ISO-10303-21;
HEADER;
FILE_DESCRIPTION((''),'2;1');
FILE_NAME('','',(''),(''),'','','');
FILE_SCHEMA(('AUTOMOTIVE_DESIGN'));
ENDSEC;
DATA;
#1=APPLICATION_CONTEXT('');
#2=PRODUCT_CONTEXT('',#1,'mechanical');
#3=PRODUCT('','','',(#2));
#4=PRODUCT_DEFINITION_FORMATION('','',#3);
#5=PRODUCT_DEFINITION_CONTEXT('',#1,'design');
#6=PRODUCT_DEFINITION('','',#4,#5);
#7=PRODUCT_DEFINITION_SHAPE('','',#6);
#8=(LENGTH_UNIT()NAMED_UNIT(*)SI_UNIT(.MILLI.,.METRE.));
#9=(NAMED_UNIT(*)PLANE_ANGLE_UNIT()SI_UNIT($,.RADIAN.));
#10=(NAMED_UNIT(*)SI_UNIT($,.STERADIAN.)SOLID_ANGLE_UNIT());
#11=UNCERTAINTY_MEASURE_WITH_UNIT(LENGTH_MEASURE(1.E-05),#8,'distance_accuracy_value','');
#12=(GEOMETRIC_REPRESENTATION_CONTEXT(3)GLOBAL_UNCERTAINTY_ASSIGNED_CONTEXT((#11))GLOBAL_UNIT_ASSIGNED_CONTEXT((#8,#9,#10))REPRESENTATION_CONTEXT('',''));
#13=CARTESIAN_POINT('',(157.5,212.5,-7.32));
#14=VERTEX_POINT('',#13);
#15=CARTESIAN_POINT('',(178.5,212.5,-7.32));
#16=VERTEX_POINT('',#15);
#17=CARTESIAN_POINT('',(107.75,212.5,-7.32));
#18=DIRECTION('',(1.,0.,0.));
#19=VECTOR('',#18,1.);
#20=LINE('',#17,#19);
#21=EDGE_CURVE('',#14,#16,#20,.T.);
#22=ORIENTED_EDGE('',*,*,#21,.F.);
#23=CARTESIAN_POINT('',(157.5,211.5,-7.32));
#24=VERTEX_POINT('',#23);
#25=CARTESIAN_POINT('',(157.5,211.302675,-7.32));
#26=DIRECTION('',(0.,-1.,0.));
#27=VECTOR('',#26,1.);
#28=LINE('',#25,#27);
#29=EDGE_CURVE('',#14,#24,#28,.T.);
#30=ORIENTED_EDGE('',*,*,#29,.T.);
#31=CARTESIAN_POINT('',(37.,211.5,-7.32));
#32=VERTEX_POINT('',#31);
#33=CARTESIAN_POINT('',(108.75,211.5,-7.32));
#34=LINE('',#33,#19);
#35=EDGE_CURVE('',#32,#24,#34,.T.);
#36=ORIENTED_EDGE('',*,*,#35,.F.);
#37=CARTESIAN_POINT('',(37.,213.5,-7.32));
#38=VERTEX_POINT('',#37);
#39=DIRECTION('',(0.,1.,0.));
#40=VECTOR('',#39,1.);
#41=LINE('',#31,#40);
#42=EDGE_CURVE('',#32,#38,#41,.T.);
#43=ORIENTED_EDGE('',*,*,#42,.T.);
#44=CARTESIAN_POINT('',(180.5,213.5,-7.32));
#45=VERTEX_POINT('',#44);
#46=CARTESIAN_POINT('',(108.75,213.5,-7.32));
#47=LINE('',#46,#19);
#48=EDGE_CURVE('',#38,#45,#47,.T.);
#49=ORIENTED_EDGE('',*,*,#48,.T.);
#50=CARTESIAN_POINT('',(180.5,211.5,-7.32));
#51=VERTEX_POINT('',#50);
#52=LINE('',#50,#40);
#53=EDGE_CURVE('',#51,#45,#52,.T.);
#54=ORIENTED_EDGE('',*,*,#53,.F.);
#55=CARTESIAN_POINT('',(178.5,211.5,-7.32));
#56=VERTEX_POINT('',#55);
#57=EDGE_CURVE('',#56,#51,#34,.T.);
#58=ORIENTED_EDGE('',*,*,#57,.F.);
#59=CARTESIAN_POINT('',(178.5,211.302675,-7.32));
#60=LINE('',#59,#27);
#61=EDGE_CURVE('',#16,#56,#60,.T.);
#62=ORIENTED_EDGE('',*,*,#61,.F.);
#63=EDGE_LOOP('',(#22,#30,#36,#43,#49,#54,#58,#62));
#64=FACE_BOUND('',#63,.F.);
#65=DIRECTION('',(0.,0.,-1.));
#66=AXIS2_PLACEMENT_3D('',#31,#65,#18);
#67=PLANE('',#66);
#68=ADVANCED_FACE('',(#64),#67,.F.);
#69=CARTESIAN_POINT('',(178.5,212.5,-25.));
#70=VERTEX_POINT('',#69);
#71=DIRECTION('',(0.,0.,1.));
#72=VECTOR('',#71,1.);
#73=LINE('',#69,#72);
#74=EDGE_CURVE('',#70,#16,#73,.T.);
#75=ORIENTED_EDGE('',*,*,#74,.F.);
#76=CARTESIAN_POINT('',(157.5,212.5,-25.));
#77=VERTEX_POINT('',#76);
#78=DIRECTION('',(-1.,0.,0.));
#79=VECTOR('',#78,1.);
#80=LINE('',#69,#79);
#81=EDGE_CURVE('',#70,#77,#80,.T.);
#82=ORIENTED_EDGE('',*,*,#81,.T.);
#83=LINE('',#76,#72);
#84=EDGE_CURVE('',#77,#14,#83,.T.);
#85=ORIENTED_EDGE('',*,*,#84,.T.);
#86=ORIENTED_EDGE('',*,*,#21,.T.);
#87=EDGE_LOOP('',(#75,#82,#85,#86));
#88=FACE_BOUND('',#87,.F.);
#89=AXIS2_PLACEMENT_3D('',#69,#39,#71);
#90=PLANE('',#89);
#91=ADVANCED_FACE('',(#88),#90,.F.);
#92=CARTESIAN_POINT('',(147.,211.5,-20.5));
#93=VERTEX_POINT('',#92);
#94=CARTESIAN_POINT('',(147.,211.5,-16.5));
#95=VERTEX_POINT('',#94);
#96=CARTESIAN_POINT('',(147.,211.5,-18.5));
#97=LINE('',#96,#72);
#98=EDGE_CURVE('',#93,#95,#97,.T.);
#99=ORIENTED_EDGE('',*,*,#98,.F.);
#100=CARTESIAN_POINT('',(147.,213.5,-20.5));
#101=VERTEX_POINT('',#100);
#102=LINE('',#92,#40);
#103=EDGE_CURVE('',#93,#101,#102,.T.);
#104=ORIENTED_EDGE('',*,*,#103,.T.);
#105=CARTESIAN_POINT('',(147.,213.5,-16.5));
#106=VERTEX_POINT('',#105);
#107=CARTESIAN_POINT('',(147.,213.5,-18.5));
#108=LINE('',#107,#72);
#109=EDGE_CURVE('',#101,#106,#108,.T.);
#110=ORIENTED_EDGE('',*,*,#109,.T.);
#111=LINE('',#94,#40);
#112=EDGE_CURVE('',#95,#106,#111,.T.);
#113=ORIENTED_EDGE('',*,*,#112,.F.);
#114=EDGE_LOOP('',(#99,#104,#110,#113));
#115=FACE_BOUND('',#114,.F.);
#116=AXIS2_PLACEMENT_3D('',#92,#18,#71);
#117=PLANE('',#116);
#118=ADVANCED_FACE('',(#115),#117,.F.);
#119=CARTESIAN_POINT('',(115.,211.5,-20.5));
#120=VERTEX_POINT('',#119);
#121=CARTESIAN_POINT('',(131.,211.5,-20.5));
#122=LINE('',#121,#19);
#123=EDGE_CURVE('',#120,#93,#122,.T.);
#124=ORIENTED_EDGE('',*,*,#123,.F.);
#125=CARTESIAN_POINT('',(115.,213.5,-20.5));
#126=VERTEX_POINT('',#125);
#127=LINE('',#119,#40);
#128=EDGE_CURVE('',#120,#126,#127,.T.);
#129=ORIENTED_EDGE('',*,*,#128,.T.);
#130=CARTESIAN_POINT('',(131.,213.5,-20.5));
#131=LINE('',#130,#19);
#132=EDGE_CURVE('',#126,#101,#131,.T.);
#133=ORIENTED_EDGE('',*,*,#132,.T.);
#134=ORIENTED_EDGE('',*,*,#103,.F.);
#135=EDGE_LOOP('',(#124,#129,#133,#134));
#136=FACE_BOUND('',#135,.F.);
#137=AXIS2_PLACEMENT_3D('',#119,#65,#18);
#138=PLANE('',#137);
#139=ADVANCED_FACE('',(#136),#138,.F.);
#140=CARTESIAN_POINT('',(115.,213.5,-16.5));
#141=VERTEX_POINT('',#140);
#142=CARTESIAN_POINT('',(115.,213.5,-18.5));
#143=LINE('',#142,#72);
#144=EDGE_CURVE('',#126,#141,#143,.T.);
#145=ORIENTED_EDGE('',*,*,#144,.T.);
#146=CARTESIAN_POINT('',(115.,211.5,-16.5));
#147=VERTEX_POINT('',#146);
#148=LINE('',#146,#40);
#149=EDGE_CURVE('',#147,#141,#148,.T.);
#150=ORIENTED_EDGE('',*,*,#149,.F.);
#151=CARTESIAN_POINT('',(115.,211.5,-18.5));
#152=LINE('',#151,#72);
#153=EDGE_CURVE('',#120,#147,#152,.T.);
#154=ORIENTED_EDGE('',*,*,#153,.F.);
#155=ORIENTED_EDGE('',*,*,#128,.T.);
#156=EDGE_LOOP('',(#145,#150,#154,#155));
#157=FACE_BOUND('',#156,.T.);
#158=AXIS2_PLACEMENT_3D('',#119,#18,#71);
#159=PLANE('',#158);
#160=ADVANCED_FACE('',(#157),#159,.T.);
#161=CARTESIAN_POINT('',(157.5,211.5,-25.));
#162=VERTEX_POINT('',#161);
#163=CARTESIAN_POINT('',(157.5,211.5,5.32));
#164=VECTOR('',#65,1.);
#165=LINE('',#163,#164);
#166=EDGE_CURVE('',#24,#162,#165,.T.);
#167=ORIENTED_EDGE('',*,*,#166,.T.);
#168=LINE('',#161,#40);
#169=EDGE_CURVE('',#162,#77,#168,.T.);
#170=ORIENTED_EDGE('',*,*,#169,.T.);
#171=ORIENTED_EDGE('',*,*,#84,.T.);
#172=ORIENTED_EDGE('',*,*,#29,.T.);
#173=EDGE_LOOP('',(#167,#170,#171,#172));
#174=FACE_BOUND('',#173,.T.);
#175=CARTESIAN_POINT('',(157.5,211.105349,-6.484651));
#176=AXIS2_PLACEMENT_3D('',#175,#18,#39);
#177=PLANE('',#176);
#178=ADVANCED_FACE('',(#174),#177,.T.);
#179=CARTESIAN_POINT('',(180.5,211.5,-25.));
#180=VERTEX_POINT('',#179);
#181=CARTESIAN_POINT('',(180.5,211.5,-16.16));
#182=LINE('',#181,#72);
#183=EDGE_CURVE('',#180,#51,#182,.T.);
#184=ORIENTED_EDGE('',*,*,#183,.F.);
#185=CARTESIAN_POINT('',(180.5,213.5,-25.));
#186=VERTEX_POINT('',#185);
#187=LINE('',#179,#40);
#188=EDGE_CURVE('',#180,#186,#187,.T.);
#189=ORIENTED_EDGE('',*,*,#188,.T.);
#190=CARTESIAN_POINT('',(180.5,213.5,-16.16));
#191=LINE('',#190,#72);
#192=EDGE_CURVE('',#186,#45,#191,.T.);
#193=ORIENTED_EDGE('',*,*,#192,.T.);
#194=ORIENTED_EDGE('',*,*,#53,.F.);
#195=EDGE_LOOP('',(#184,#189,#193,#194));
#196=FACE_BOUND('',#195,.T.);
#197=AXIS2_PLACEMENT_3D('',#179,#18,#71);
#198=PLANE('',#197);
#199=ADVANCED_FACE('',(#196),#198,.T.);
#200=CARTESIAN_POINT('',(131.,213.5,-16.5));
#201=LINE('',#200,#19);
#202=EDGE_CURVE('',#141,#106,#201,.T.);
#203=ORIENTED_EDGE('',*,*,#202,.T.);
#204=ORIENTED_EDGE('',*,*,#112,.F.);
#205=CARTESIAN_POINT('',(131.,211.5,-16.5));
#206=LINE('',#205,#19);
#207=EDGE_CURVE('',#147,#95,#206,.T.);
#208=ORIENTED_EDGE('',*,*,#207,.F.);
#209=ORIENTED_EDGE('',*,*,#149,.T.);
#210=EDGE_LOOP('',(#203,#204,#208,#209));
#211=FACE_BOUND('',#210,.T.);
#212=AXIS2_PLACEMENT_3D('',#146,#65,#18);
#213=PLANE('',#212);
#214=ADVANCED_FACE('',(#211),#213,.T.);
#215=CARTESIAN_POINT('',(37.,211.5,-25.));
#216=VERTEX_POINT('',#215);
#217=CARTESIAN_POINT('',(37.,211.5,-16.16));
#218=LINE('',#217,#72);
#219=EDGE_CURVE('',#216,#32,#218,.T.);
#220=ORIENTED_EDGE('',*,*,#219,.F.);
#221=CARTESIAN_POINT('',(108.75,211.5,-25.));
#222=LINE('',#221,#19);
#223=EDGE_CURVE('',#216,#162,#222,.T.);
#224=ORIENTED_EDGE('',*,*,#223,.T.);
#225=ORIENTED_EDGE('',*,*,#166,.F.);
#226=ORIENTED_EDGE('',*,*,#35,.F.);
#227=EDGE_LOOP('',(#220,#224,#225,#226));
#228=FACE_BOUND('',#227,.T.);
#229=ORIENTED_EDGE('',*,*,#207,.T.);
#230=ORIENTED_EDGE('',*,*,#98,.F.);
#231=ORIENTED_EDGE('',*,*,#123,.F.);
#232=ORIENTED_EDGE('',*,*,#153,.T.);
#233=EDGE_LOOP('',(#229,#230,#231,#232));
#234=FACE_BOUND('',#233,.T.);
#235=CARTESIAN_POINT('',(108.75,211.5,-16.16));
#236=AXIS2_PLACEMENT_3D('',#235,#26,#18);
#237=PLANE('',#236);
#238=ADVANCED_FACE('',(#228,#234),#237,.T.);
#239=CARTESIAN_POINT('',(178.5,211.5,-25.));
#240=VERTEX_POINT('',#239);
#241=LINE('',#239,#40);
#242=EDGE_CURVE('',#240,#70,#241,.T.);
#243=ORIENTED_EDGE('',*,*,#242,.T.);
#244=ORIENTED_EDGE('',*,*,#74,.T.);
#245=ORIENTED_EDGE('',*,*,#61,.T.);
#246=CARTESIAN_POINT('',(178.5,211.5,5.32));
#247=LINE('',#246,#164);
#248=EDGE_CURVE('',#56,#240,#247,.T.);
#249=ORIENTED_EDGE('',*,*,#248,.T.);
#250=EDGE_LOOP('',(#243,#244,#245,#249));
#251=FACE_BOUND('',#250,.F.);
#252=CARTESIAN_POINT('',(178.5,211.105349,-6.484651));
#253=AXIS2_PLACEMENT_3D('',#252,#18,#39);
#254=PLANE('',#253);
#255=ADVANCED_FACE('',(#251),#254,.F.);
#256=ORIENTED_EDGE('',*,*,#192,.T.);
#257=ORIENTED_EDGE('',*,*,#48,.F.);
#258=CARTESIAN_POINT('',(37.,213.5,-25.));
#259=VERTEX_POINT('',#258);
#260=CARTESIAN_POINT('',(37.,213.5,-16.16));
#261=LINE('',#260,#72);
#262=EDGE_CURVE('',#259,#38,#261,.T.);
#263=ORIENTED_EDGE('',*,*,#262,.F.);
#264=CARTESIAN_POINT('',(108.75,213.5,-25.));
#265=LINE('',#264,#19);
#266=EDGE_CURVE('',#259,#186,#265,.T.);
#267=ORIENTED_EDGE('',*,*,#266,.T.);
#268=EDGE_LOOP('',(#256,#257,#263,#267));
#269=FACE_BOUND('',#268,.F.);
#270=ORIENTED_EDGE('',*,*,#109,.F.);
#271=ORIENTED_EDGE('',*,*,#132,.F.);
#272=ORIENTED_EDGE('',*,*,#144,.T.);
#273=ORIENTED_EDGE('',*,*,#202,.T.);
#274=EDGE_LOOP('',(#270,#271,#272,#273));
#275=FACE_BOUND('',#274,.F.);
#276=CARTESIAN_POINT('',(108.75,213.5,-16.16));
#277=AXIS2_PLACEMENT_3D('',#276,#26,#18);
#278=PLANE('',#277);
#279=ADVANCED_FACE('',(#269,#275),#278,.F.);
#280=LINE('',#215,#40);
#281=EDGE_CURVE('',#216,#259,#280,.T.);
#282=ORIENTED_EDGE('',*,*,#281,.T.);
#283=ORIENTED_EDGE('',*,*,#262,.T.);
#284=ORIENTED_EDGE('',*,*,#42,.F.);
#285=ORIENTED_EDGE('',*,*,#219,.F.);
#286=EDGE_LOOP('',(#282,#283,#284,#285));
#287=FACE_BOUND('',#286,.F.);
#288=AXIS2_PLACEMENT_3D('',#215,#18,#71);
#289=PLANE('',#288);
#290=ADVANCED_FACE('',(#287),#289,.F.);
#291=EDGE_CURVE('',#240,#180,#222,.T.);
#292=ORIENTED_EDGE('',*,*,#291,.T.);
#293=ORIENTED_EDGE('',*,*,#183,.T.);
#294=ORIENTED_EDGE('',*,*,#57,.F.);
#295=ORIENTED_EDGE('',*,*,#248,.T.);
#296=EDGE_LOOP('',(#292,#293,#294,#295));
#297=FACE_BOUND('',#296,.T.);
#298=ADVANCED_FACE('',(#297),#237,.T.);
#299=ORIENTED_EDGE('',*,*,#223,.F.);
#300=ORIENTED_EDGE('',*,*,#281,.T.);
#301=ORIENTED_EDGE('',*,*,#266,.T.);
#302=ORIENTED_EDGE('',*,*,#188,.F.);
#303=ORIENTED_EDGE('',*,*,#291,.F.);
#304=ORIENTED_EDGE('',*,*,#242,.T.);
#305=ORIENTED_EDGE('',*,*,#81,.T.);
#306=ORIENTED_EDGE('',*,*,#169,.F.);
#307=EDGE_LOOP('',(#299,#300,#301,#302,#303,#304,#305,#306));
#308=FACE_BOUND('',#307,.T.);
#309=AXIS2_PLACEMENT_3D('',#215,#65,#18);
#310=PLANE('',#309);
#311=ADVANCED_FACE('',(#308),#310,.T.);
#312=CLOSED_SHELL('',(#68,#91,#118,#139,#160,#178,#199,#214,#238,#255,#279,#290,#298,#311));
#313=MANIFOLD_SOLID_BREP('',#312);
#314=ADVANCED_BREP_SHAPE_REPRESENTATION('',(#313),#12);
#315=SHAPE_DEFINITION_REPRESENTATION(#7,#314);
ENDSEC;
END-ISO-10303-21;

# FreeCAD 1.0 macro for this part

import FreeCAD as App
import Part
import Sketcher
Q = App.Units.Quantity


def add_polygon(sketch, points):
    """Adds a closed chain of lines whose ends are joined by coincident constraints."""
    first, n = sketch.GeometryCount, len(points)
    for a, b in zip(points, points[1:] + points[:1]):
        sketch.addGeometry(Part.LineSegment(App.Vector(*a, 0), App.Vector(*b, 0)), False)
    for i in range(n):
        sketch.addConstraint(Sketcher.Constraint("Coincident", first + i, 2, first + (i + 1) % n, 1))

doc = App.newDocument("Part")
body = doc.addObject("PartDesign::Body", "Body")

sketch1 = body.newObject("Sketcher::SketchObject", "Sketch")
sketch1.AttachmentSupport = (doc.getObject("YZ_Plane"), [""])
sketch1.MapMode = "FlatFace"
sketch1.AttachmentOffset = App.Placement(App.Vector(0, 0, 178.5), App.Rotation())
add_polygon(sketch1, [(204, 6.3), (212.5, 6.3), (212.5, -25), (211.5, -25), (211.5, 5.3), (204, 5.3)])
sketch1.addConstraint([
    Sketcher.Constraint("Horizontal", 0),
    Sketcher.Constraint("Vertical", 1),
    Sketcher.Constraint("Horizontal", 2),
    Sketcher.Constraint("Vertical", 3),
    Sketcher.Constraint("Horizontal", 4),
    Sketcher.Constraint("Vertical", 5),
    Sketcher.Constraint("Equal", 2, 5),
    Sketcher.Constraint("DistanceX", 2, 2, 2, 1, Q("1 mm")),
    Sketcher.Constraint("DistanceX", 0, 1, 0, 2, Q("8.5 mm")),
    Sketcher.Constraint("DistanceY", 1, 2, -1, 1, Q("25 mm")),
    Sketcher.Constraint("DistanceX", -1, 1, 4, 2, Q("204 mm")),
    Sketcher.Constraint("DistanceY", 1, 2, 1, 1, Q("31.32 mm")),
])
pad1 = body.newObject("PartDesign::Pad", "Pad")
pad1.Profile = sketch1
pad1.Length = 21
pad1.Reversed = True
body2 = doc.addObject("PartDesign::Body", "Body001")

sketch2 = body2.newObject("Sketcher::SketchObject", "Sketch001")
sketch2.AttachmentSupport = (doc.getObject("XZ_Plane001"), [""])
sketch2.MapMode = "FlatFace"
sketch2.AttachmentOffset = App.Placement(App.Vector(0, 0, -211.5), App.Rotation())
add_polygon(sketch2, [(37, -7.3), (37, -25), (180.5, -25), (180.5, -7.3)])
add_polygon(sketch2, [(147, -20.5), (115, -20.5), (115, -16.5), (147, -16.5)])
sketch2.addConstraint([
    Sketcher.Constraint("Vertical", 0),
    Sketcher.Constraint("Horizontal", 1),
    Sketcher.Constraint("Vertical", 2),
    Sketcher.Constraint("Horizontal", 3),
    Sketcher.Constraint("Horizontal", 4),
    Sketcher.Constraint("Vertical", 5),
    Sketcher.Constraint("Horizontal", 6),
    Sketcher.Constraint("Vertical", 7),
    Sketcher.Constraint("DistanceX", 4, 2, 4, 1, Q("32 mm")),
    Sketcher.Constraint("DistanceY", 5, 1, 5, 2, Q("4 mm")),
    Sketcher.Constraint("DistanceX", 1, 1, 1, 2, Q("143.5 mm")),
    Sketcher.Constraint("DistanceX", -1, 1, 0, 2, Q("37 mm")),
    Sketcher.Constraint("DistanceY", 0, 2, -1, 1, Q("25 mm")),
    Sketcher.Constraint("DistanceX", -1, 1, 4, 2, Q("115 mm")),
    Sketcher.Constraint("DistanceY", 0, 2, 0, 1, Q("17.68 mm")),
    Sketcher.Constraint("DistanceY", 4, 2, -1, 1, Q("20.5 mm")),
])
pad2 = body2.newObject("PartDesign::Pad", "Pad001")
pad2.Profile = sketch2
pad2.Length = 2
pad2.Reversed = True
doc.recompute()

boolean = body2.newObject("PartDesign::Boolean", "Boolean")
boolean.Type = "Cut"
boolean.addObjects([body])

doc.recompute()
